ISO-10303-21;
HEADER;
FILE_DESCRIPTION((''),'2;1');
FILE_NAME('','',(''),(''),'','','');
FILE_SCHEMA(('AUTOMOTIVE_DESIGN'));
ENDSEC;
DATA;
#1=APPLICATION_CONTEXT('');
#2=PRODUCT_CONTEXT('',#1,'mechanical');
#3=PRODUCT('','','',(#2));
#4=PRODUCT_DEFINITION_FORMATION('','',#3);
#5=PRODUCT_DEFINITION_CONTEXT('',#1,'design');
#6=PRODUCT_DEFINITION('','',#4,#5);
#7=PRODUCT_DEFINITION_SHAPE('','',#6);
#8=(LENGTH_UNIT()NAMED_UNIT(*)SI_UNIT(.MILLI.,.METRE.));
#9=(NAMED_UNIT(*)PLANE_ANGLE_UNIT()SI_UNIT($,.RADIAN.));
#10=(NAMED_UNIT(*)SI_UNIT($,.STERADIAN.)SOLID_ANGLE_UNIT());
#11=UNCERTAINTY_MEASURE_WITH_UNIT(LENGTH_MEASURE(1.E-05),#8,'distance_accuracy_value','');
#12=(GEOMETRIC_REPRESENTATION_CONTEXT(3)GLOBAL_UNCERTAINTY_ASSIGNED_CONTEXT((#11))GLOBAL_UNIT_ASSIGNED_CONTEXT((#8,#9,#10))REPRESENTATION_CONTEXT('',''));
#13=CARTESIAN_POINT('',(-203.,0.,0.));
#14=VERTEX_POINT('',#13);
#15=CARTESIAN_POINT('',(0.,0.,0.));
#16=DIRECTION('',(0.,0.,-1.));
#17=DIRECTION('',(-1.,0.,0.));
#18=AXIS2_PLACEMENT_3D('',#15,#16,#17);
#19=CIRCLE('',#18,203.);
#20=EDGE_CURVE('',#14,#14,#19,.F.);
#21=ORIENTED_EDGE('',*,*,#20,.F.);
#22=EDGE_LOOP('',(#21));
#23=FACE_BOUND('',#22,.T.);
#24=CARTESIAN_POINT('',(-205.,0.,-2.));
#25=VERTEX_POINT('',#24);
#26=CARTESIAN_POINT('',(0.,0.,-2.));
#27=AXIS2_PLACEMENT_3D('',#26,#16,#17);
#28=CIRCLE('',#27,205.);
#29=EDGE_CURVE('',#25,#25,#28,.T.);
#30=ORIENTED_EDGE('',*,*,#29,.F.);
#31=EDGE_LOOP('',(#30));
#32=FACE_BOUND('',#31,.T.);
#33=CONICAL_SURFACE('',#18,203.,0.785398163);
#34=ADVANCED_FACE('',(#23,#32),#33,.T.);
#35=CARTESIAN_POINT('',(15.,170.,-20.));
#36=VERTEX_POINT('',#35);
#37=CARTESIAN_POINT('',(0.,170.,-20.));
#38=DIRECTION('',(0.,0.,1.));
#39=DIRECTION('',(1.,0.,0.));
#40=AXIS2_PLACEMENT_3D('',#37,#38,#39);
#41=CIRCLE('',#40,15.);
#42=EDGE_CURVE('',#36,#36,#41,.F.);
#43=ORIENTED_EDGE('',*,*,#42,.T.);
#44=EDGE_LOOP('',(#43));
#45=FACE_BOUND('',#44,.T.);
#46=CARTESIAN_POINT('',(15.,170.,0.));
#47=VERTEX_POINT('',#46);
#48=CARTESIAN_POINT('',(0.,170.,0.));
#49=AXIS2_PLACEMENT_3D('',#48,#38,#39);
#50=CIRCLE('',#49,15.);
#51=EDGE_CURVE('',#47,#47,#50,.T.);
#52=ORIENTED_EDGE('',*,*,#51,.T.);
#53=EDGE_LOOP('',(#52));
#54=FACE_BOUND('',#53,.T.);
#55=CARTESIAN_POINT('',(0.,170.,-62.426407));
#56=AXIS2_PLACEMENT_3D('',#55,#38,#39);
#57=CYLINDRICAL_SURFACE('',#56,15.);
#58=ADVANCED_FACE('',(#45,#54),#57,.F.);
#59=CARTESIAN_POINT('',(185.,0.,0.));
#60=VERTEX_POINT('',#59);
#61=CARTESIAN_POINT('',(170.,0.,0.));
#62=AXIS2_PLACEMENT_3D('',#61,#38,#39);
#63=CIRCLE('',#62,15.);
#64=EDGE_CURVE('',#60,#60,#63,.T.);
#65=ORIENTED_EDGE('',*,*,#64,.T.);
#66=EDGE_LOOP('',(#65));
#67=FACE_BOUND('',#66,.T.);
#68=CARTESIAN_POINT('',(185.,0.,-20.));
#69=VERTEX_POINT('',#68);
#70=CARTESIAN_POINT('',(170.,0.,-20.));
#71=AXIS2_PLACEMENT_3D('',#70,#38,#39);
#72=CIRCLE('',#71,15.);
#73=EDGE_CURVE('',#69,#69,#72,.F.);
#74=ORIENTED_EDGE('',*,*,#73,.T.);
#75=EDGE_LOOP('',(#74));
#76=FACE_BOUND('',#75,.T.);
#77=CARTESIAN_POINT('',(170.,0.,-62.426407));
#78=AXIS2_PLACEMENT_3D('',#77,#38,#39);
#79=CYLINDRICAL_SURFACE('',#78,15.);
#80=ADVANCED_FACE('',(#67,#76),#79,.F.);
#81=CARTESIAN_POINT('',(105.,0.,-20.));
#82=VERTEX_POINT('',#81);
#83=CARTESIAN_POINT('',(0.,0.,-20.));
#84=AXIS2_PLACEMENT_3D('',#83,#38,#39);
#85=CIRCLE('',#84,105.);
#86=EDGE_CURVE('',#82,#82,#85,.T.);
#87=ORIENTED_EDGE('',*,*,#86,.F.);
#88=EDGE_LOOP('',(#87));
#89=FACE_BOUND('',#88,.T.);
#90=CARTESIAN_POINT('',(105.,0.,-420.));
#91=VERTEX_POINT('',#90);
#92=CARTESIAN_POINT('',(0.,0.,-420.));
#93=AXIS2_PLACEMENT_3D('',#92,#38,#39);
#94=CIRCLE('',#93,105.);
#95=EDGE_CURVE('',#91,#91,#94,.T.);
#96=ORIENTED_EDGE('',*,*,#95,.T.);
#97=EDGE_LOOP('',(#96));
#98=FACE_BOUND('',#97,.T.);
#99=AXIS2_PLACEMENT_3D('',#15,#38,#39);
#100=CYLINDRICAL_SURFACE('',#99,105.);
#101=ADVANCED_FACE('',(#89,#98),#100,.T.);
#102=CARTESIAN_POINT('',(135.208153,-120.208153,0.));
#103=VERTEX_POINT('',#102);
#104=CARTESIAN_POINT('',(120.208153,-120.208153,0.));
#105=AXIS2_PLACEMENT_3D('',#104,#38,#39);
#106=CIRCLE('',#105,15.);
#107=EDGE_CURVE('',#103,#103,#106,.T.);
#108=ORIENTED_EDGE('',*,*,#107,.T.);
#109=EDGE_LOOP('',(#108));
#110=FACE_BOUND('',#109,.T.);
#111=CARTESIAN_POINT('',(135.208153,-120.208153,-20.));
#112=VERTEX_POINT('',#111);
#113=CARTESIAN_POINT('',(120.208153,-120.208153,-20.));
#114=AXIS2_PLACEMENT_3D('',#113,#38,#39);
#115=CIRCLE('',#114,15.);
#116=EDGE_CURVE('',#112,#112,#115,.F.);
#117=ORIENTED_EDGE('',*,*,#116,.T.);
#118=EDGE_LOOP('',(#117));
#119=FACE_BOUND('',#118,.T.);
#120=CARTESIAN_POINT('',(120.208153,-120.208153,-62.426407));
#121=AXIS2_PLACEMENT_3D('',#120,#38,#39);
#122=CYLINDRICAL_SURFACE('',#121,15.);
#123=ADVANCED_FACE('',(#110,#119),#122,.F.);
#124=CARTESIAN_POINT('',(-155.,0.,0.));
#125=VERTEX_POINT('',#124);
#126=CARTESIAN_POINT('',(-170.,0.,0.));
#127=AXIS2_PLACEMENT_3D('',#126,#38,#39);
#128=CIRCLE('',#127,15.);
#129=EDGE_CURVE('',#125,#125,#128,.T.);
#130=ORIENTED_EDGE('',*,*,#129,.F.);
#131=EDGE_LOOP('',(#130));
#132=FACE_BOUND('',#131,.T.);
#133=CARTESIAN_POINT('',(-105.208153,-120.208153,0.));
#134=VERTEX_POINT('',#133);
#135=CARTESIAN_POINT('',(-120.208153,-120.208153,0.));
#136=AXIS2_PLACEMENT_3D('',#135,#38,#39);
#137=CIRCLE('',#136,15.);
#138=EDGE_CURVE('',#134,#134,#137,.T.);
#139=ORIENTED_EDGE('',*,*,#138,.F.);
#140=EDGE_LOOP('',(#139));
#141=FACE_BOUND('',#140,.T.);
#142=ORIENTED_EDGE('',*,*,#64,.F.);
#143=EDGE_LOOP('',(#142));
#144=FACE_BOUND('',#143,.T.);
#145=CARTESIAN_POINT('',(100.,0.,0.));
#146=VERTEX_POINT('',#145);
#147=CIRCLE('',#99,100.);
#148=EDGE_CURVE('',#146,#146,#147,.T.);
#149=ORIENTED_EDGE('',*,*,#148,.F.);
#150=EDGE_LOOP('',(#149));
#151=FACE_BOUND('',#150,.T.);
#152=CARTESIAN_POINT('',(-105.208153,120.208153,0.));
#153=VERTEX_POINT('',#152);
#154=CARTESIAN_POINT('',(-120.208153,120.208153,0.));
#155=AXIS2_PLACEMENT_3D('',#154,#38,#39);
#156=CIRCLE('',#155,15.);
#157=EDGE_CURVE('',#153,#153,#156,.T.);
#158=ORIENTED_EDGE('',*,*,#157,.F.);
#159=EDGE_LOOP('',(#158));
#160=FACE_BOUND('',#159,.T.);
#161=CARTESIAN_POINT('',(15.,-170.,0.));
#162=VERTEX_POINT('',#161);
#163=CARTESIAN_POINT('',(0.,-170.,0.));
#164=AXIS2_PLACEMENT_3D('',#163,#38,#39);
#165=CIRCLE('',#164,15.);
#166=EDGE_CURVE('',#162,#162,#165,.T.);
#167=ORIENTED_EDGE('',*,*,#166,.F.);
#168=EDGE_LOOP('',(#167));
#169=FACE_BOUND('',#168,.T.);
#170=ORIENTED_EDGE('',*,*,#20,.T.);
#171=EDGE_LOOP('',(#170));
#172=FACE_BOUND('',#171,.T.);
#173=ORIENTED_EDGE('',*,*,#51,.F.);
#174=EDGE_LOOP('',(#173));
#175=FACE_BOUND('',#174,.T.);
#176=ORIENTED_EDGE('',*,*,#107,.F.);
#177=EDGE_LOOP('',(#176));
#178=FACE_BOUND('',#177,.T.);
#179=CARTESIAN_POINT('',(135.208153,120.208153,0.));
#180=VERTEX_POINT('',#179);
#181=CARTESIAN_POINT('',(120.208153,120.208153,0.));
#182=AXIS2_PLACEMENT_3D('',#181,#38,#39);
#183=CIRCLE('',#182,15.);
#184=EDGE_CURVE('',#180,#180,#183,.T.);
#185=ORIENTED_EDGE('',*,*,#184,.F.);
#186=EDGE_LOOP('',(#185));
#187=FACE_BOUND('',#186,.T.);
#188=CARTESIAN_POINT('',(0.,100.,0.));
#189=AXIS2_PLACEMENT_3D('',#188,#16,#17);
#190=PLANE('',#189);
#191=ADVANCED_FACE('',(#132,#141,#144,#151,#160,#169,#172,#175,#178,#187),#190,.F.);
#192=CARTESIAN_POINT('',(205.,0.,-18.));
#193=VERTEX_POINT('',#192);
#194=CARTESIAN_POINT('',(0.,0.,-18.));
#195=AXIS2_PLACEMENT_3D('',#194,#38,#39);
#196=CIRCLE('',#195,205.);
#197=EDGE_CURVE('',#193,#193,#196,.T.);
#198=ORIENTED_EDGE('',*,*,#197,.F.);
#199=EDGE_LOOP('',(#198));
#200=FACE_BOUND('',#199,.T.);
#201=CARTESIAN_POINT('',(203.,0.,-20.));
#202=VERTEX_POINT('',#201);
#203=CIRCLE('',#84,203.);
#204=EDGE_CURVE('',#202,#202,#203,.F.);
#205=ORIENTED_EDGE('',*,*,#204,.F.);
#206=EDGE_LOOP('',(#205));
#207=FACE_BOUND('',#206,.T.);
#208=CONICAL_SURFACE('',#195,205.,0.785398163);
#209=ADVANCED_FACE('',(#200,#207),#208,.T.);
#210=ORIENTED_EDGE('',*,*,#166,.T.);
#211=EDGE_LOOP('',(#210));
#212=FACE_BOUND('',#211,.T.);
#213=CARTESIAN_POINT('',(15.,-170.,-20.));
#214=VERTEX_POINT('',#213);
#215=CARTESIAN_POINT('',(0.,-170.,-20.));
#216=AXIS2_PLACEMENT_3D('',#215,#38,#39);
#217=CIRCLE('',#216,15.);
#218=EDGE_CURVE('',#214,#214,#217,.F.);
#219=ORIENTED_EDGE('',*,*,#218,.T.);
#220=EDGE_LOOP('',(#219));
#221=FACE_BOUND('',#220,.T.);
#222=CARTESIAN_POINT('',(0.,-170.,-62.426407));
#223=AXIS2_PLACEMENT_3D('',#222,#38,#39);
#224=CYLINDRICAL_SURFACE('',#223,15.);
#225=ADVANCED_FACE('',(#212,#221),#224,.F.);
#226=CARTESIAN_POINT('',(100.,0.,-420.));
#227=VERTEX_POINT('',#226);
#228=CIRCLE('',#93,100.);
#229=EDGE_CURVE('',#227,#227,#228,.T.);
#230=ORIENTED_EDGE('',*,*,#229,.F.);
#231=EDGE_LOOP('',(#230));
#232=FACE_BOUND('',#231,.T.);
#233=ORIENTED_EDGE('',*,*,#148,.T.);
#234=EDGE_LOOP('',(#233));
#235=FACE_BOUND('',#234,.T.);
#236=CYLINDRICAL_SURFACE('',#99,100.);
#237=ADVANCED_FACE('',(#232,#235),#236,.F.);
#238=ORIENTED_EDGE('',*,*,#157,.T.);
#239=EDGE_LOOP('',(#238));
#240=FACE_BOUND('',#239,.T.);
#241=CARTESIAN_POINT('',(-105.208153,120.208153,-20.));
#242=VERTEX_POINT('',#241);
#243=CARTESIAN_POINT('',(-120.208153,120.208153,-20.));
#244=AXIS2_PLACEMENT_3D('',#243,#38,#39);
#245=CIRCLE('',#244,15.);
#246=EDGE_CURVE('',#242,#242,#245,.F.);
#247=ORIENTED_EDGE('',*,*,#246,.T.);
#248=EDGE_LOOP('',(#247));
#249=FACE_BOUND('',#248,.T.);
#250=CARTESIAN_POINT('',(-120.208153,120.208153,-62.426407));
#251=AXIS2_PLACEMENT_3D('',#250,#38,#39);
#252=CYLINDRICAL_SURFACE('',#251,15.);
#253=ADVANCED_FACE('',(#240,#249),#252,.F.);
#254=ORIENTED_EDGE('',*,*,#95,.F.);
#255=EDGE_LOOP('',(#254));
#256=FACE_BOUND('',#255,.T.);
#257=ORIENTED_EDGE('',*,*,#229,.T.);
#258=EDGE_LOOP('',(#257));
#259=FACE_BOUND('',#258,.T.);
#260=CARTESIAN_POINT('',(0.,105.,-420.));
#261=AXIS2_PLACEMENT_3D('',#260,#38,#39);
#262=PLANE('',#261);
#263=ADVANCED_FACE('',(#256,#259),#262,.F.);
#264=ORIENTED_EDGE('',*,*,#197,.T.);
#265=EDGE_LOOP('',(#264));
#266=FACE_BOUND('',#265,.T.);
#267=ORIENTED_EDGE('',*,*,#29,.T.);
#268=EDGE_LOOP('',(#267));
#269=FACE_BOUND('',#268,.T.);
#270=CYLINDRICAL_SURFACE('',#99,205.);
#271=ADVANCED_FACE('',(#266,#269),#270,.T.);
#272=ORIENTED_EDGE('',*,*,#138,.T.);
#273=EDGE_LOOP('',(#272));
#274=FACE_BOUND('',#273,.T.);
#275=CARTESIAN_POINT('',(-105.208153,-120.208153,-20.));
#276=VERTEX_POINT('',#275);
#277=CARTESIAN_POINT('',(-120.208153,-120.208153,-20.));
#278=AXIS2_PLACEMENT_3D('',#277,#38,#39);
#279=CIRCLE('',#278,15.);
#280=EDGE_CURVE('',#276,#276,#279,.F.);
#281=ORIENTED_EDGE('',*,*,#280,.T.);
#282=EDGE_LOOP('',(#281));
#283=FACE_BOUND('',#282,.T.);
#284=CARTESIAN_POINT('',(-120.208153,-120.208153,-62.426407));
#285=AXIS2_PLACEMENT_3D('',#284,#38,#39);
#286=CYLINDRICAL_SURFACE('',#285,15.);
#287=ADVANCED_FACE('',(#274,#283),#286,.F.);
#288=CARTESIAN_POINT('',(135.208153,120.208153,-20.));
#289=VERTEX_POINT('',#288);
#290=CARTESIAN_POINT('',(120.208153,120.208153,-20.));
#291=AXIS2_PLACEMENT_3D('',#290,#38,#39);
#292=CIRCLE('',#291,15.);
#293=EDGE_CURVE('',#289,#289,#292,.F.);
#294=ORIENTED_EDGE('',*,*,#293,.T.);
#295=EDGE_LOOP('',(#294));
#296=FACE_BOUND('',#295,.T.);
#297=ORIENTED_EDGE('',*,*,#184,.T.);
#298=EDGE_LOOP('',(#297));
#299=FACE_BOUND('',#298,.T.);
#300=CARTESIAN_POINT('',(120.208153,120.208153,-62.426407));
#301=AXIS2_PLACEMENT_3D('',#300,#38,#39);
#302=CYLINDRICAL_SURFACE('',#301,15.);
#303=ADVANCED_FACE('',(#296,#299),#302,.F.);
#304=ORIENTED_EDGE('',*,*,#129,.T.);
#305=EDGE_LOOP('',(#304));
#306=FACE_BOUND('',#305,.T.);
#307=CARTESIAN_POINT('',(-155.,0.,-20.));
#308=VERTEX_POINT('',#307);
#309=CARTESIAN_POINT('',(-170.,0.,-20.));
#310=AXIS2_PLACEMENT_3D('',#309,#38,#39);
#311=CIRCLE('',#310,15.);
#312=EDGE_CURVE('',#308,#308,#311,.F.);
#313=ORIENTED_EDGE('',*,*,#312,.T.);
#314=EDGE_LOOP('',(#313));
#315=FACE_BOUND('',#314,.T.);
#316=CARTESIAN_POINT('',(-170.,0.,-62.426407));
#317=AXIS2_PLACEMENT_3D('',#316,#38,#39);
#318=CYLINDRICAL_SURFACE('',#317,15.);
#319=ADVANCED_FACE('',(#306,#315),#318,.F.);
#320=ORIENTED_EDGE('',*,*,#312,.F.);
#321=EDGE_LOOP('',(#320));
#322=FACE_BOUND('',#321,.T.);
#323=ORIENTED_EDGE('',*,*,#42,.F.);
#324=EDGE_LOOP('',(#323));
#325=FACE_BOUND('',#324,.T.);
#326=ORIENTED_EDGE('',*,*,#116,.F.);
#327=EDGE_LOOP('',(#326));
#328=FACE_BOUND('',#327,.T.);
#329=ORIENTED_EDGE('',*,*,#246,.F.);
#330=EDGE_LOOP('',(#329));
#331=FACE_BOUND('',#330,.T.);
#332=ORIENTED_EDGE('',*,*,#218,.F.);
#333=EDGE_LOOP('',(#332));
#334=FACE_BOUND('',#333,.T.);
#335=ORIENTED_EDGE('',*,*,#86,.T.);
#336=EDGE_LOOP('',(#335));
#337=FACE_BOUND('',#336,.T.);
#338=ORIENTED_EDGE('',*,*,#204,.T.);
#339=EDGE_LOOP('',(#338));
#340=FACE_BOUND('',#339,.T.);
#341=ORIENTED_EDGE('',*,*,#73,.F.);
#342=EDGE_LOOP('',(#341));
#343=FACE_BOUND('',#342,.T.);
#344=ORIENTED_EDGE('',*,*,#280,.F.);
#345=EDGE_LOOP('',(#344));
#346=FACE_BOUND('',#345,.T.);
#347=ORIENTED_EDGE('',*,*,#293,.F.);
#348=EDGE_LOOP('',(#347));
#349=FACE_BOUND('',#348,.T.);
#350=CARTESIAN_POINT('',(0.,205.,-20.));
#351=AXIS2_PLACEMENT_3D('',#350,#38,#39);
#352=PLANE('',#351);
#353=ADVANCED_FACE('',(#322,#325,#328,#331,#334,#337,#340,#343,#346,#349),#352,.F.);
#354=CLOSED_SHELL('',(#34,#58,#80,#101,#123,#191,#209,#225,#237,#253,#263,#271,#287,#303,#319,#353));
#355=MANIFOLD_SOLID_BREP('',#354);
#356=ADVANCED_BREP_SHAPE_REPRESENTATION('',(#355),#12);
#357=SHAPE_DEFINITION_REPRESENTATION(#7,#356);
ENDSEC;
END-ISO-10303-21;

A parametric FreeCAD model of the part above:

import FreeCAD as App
import Part
import Sketcher

V = App.Vector
Q = App.Units.Quantity


def edges_at(feature, points):
    """Names of the edges that pass closest to the given points."""
    edges = feature.Shape.Edges
    near = lambda p: min(range(len(edges)), key=lambda i: edges[i].distToShape(Part.Vertex(*p))[0])
    return sorted({f"Edge{near(p) + 1}" for p in points})


def add_polygon(sketch, points):
    """Adds a closed chain of lines whose ends are joined by coincident constraints."""
    first, n = sketch.GeometryCount, len(points)
    for a, b in zip(points, points[1:] + points[:1]):
        sketch.addGeometry(Part.LineSegment(App.Vector(*a, 0), App.Vector(*b, 0)), False)
    for i in range(n):
        sketch.addConstraint(Sketcher.Constraint("Coincident", first + i, 2, first + (i + 1) % n, 1))

doc = App.newDocument("Part")
body = doc.addObject("PartDesign::Body", "Body")

sketch1 = body.newObject("Sketcher::SketchObject", "Sketch")
sketch1.AttachmentSupport = (doc.getObject("YZ_Plane"), [""])
sketch1.MapMode = "FlatFace"
add_polygon(sketch1, [(205, 0), (100, 0), (100, -420), (105, -420), (105, -20), (205, -20)])
sketch1.addConstraint([
    Sketcher.Constraint("Horizontal", 0),
    Sketcher.Constraint("Vertical", 1),
    Sketcher.Constraint("Horizontal", 2),
    Sketcher.Constraint("Vertical", 3),
    Sketcher.Constraint("Horizontal", 4),
    Sketcher.Constraint("Vertical", 5),
    Sketcher.Constraint("PointOnObject", 0, 2, -1),
    Sketcher.Constraint("DistanceX", 0, 2, 0, 1, Q("105 mm")),
    Sketcher.Constraint("DistanceX", 2, 1, 2, 2, Q("5 mm")),
    Sketcher.Constraint("DistanceY", 1, 2, 1, 1, Q("420 mm")),
    Sketcher.Constraint("DistanceY", 3, 1, 3, 2, Q("400 mm")),
    Sketcher.Constraint("DistanceX", -1, 1, 0, 2, Q("100 mm")),
])
revolution = body.newObject("PartDesign::Revolution", "Revolution")
revolution.Profile = sketch1
revolution.ReferenceAxis = (sketch1, ["V_Axis"])
revolution.Angle = 360

sketch2 = body.newObject("Sketcher::SketchObject", "Sketch001")
sketch2.AttachmentSupport = (doc.getObject("XY_Plane"), [""])
sketch2.MapMode = "FlatFace"
sketch2.addGeometry([
    Part.Circle(V(0, 170, 0), V(0, 0, 1), 15),
    Part.Circle(V(120, 120, 0), V(0, 0, 1), 15),
    Part.Circle(V(170, 0, 0), V(0, 0, 1), 15),
    Part.Circle(V(120, -120, 0), V(0, 0, 1), 15),
    Part.Circle(V(0, -170, 0), V(0, 0, 1), 15),
    Part.Circle(V(-120, -120, 0), V(0, 0, 1), 15),
    Part.Circle(V(-170, 0, 0), V(0, 0, 1), 15),
    Part.Circle(V(-120, 120, 0), V(0, 0, 1), 15),
], False)
sketch2.addConstraint([
    Sketcher.Constraint("Equal", 0, 1),
    Sketcher.Constraint("Equal", 1, 2),
    Sketcher.Constraint("Equal", 2, 3),
    Sketcher.Constraint("Equal", 3, 4),
    Sketcher.Constraint("Equal", 4, 5),
    Sketcher.Constraint("Equal", 5, 6),
    Sketcher.Constraint("Equal", 6, 7),
    Sketcher.Constraint("Symmetric", 0, 3, 4, 3, -1, 1),
    Sketcher.Constraint("Symmetric", 1, 3, 5, 3, -1, 1),
    Sketcher.Constraint("Symmetric", 2, 3, 6, 3, -1, 1),
    Sketcher.Constraint("Symmetric", 3, 3, 7, 3, -1, 1),
    Sketcher.Constraint("Symmetric", 3, 3, 5, 3, -2),
    Sketcher.Constraint("PointOnObject", 0, 3, -2),
    Sketcher.Constraint("PointOnObject", 2, 3, -1),
    Sketcher.Constraint("Diameter", 0, Q("30 mm")),
    Sketcher.Constraint("DistanceY", -1, 1, 0, 3, Q("170 mm")),
    Sketcher.Constraint("DistanceX", -1, 1, 2, 3, Q("170 mm")),
    Sketcher.Constraint("DistanceX", -1, 1, 1, 3, Q("120.208153 mm")),
    Sketcher.Constraint("DistanceY", -1, 1, 1, 3, Q("120.208153 mm")),
])
pocket1 = body.newObject("PartDesign::Pocket", "Pocket")
pocket1.Profile = sketch2
pocket1.Length = 20
doc.recompute()

chamfer = body.newObject("PartDesign::Chamfer", "Chamfer")
chamfer.Base = (pocket1, edges_at(pocket1, [(-205, 0, -20), (-205, 0, 0)]))
chamfer.Size = 2

doc.recompute()
